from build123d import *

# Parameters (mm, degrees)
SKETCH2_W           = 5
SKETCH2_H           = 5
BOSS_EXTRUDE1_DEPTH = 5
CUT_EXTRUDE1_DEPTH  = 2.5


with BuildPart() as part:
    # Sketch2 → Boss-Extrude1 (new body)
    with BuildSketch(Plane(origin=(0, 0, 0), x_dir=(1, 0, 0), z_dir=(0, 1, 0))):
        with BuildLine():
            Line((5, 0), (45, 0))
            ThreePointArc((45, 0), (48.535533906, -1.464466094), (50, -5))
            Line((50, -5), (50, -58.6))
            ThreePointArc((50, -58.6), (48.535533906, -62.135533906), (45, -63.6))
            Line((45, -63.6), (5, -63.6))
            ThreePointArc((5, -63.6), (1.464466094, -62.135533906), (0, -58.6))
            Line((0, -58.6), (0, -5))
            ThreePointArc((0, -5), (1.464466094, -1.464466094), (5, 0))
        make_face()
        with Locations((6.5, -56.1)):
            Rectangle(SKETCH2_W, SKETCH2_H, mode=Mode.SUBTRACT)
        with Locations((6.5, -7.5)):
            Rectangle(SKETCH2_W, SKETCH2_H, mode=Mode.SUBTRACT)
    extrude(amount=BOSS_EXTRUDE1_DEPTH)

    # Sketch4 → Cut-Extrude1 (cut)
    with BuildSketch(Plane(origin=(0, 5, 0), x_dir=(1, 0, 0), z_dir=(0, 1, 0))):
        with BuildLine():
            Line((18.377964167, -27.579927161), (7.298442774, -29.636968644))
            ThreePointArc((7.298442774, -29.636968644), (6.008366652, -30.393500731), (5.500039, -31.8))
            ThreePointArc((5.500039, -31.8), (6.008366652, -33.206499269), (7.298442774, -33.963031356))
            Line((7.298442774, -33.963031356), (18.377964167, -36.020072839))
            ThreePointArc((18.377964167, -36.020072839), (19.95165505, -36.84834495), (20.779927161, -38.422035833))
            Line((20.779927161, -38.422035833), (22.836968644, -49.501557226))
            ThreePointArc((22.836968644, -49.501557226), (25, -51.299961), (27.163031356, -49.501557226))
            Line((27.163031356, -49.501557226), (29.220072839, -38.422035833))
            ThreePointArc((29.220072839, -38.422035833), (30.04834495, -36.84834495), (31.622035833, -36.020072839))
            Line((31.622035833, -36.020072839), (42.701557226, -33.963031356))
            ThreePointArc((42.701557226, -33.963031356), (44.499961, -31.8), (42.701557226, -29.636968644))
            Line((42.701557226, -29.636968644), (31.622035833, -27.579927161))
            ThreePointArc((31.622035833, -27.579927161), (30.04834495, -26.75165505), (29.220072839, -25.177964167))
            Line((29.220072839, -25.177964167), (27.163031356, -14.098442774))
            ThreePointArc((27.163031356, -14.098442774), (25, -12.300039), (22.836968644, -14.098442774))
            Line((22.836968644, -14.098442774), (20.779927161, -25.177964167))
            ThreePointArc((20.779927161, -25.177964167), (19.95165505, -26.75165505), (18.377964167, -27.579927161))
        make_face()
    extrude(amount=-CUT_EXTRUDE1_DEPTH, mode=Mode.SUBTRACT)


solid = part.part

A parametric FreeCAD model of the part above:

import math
import FreeCAD as App
import Part
import Sketcher
from FreeCAD import Vector
Q = App.Units.Quantity

doc = App.newDocument("Part")
body = doc.addObject("PartDesign::Body", "Body")

sketch1 = body.newObject("Sketcher::SketchObject", "Sketch")
sketch1.AttachmentSupport = (doc.getObject("XZ_Plane"), [""])
sketch1.MapMode = "FlatFace"
sketch1.addGeometry([
    Part.LineSegment(Vector(45, 0, 0), Vector(5, 0, 0)),
    Part.ArcOfCircle(Part.Circle(Vector(5, 5, 0), Vector(0, 0, 1), 5), math.radians(180), math.radians(270)),
    Part.LineSegment(Vector(0, 5, 0), Vector(0, 59, 0)),
    Part.ArcOfCircle(Part.Circle(Vector(5, 59, 0), Vector(0, 0, 1), 5), math.radians(90), math.radians(180)),
    Part.LineSegment(Vector(5, 64, 0), Vector(45, 64, 0)),
    Part.ArcOfCircle(Part.Circle(Vector(45, 59, 0), Vector(0, 0, 1), 5), math.radians(0), math.radians(90)),
    Part.LineSegment(Vector(50, 59, 0), Vector(50, 5, 0)),
    Part.ArcOfCircle(Part.Circle(Vector(45, 5, 0), Vector(0, 0, 1), 5), math.radians(-90), math.radians(0)),
    Part.LineSegment(Vector(4, 59, 0), Vector(4, 54, 0)),
    Part.LineSegment(Vector(4, 54, 0), Vector(9, 54, 0)),
    Part.LineSegment(Vector(9, 54, 0), Vector(9, 59, 0)),
    Part.LineSegment(Vector(9, 59, 0), Vector(4, 59, 0)),
    Part.LineSegment(Vector(4, 10, 0), Vector(4, 5, 0)),
    Part.LineSegment(Vector(4, 5, 0), Vector(9, 5, 0)),
    Part.LineSegment(Vector(9, 5, 0), Vector(9, 10, 0)),
    Part.LineSegment(Vector(9, 10, 0), Vector(4, 10, 0)),
], False)
sketch1.addConstraint([
    Sketcher.Constraint("Tangent", 0, 2, 1, 2),
    Sketcher.Constraint("Tangent", 1, 1, 2, 1),
    Sketcher.Constraint("Tangent", 2, 2, 3, 2),
    Sketcher.Constraint("Tangent", 3, 1, 4, 1),
    Sketcher.Constraint("Tangent", 4, 2, 5, 2),
    Sketcher.Constraint("Tangent", 5, 1, 6, 1),
    Sketcher.Constraint("Tangent", 6, 2, 7, 2),
    Sketcher.Constraint("Tangent", 7, 1, 0, 1),
    Sketcher.Constraint("Coincident", 8, 2, 9, 1),
    Sketcher.Constraint("Coincident", 9, 2, 10, 1),
    Sketcher.Constraint("Coincident", 10, 2, 11, 1),
    Sketcher.Constraint("Coincident", 11, 2, 8, 1),
    Sketcher.Constraint("Coincident", 12, 2, 13, 1),
    Sketcher.Constraint("Coincident", 13, 2, 14, 1),
    Sketcher.Constraint("Coincident", 14, 2, 15, 1),
    Sketcher.Constraint("Coincident", 15, 2, 12, 1),
    Sketcher.Constraint("Horizontal", 0),
    Sketcher.Constraint("Vertical", 2),
    Sketcher.Constraint("Horizontal", 4),
    Sketcher.Constraint("Vertical", 6),
    Sketcher.Constraint("Vertical", 8),
    Sketcher.Constraint("Horizontal", 9),
    Sketcher.Constraint("Vertical", 10),
    Sketcher.Constraint("Horizontal", 11),
    Sketcher.Constraint("Vertical", 12),
    Sketcher.Constraint("Horizontal", 13),
    Sketcher.Constraint("Vertical", 14),
    Sketcher.Constraint("Horizontal", 15),
    Sketcher.Constraint("Equal", 1, 3),
    Sketcher.Constraint("Equal", 3, 5),
    Sketcher.Constraint("Equal", 5, 7),
    Sketcher.Constraint("PointOnObject", 0, 2, -1),
    Sketcher.Constraint("PointOnObject", 1, 1, -2),
    Sketcher.Constraint("Horizontal", 5, 1, 10, 2),
    Sketcher.Constraint("Horizontal", 6, 2, 12, 2),
    Sketcher.Constraint("Vertical", 11, 2, 12, 2),
    Sketcher.Constraint("Vertical", 10, 2, 13, 2),
    Sketcher.Constraint("Equal", 15, 8),
    Sketcher.Constraint("Equal", 10, 12),
    Sketcher.Constraint("Radius", 1, Q("5 mm")),
    Sketcher.Constraint("DistanceX", 0, 2, 0, 1, Q("40 mm")),
    Sketcher.Constraint("DistanceX", 9, 1, 9, 2, Q("5 mm")),
    Sketcher.Constraint("DistanceY", 2, 1, 2, 2, Q("53.6 mm")),
    Sketcher.Constraint("DistanceX", -1, 1, 8, 2, Q("4 mm")),
])
pad1 = body.newObject("PartDesign::Pad", "Pad")
pad1.Profile = sketch1
pad1.Length = 5
pad1.Reversed = True

sketch2 = body.newObject("Sketcher::SketchObject", "Sketch001")
sketch2.AttachmentSupport = (doc.getObject("XZ_Plane"), [""])
sketch2.MapMode = "FlatFace"
sketch2.AttachmentOffset = App.Placement(Vector(0, 0, -5), App.Rotation())
sketch2.addGeometry([
    Part.LineSegment(Vector(18.4, 27.6, 0), Vector(7.3, 29.6, 0)),
    Part.ArcOfCircle(Part.Circle(Vector(7.7, 31.8, 0), Vector(0, 0, 1), 2.2), math.radians(180), math.radians(259)),
    Part.ArcOfCircle(Part.Circle(Vector(7.7, 31.8, 0), Vector(0, 0, 1), 2.2), math.radians(101), math.radians(180)),
    Part.LineSegment(Vector(7.3, 34, 0), Vector(18.4, 36, 0)),
    Part.ArcOfCircle(Part.Circle(Vector(17.8, 39, 0), Vector(0, 0, 1), 3), math.radians(-79), math.radians(-11)),
    Part.LineSegment(Vector(20.8, 38.4, 0), Vector(22.8, 49.5, 0)),
    Part.ArcOfCircle(Part.Circle(Vector(25, 49.1, 0), Vector(0, 0, 1), 2.2), math.radians(11), math.radians(169)),
    Part.LineSegment(Vector(27.2, 49.5, 0), Vector(29.2, 38.4, 0)),
    Part.ArcOfCircle(Part.Circle(Vector(32.2, 39, 0), Vector(0, 0, 1), 3), math.radians(-169), math.radians(-101)),
    Part.LineSegment(Vector(31.6, 36, 0), Vector(42.7, 34, 0)),
    Part.ArcOfCircle(Part.Circle(Vector(42.3, 31.8, 0), Vector(0, 0, 1), 2.2), math.radians(-79), math.radians(79)),
    Part.LineSegment(Vector(42.7, 29.6, 0), Vector(31.6, 27.6, 0)),
    Part.ArcOfCircle(Part.Circle(Vector(32.2, 24.6, 0), Vector(0, 0, 1), 3), math.radians(101), math.radians(169)),
    Part.LineSegment(Vector(29.2, 25.2, 0), Vector(27.2, 14.1, 0)),
    Part.ArcOfCircle(Part.Circle(Vector(25, 14.5, 0), Vector(0, 0, 1), 2.2), math.radians(-169), math.radians(-11)),
    Part.LineSegment(Vector(22.8, 14.1, 0), Vector(20.8, 25.2, 0)),
    Part.ArcOfCircle(Part.Circle(Vector(17.8, 24.6, 0), Vector(0, 0, 1), 3), math.radians(11), math.radians(79)),
], False)
sketch2.addConstraint([
    Sketcher.Constraint("Tangent", 0, 2, 1, 2),
    Sketcher.Constraint("Tangent", 1, 1, 2, 2),
    Sketcher.Constraint("Tangent", 2, 1, 3, 1),
    Sketcher.Constraint("Tangent", 3, 2, 4, 1),
    Sketcher.Constraint("Tangent", 4, 2, 5, 1),
    Sketcher.Constraint("Tangent", 5, 2, 6, 2),
    Sketcher.Constraint("Tangent", 6, 1, 7, 1),
    Sketcher.Constraint("Tangent", 7, 2, 8, 1),
    Sketcher.Constraint("Tangent", 8, 2, 9, 1),
    Sketcher.Constraint("Tangent", 9, 2, 10, 2),
    Sketcher.Constraint("Tangent", 10, 1, 11, 1),
    Sketcher.Constraint("Tangent", 11, 2, 12, 1),
    Sketcher.Constraint("Tangent", 12, 2, 13, 1),
    Sketcher.Constraint("Tangent", 13, 2, 14, 2),
    Sketcher.Constraint("Tangent", 14, 1, 15, 1),
    Sketcher.Constraint("Tangent", 15, 2, 16, 1),
    Sketcher.Constraint("Tangent", 16, 2, 0, 1),
    Sketcher.Constraint("Equal", 1, 2),
    Sketcher.Constraint("Equal", 2, 6),
    Sketcher.Constraint("Equal", 4, 8),
    Sketcher.Constraint("Equal", 6, 10),
    Sketcher.Constraint("Equal", 8, 12),
    Sketcher.Constraint("Equal", 10, 14),
    Sketcher.Constraint("Equal", 12, 16),
    Sketcher.Constraint("Perpendicular", 0, 5),
    Sketcher.Constraint("Perpendicular", 3, 7),
    Sketcher.Constraint("Perpendicular", 5, 9),
    Sketcher.Constraint("Perpendicular", 7, 11),
    Sketcher.Constraint("Perpendicular", 9, 13),
    Sketcher.Constraint("Perpendicular", 11, 15),
    Sketcher.Constraint("Horizontal", 4, 3, 8, 3),
    Sketcher.Constraint("Horizontal", 2, 3, 10, 3),
    Sketcher.Constraint("Horizontal", 12, 3, 16, 3),
    Sketcher.Constraint("Horizontal", 10, 3, 1, 1),
    Sketcher.Constraint("Horizontal", 5, 2, 6, 1),
    Sketcher.Constraint("Vertical", 8, 3, 12, 3),
    Sketcher.Constraint("Equal", 3, 5),
    Sketcher.Constraint("DistanceX", -1, 1, 6, 3, Q("25 mm")),
    Sketcher.Constraint("DistanceY", -1, 1, 1, 3, Q("31.8 mm")),
    Sketcher.Constraint("Radius", 1, Q("2.199996 mm")),
    Sketcher.Constraint("Radius", 4, Q("2.999994 mm")),
    Sketcher.Constraint("DistanceX", 1, 1, 4, 3, Q("12.3303 mm")),
    Sketcher.Constraint("Distance", 0, Q("11.26886 mm")),
])
pocket1 = body.newObject("PartDesign::Pocket", "Pocket")
pocket1.Profile = sketch2
pocket1.Length = 2.5
pocket1.Reversed = True

doc.recompute()
